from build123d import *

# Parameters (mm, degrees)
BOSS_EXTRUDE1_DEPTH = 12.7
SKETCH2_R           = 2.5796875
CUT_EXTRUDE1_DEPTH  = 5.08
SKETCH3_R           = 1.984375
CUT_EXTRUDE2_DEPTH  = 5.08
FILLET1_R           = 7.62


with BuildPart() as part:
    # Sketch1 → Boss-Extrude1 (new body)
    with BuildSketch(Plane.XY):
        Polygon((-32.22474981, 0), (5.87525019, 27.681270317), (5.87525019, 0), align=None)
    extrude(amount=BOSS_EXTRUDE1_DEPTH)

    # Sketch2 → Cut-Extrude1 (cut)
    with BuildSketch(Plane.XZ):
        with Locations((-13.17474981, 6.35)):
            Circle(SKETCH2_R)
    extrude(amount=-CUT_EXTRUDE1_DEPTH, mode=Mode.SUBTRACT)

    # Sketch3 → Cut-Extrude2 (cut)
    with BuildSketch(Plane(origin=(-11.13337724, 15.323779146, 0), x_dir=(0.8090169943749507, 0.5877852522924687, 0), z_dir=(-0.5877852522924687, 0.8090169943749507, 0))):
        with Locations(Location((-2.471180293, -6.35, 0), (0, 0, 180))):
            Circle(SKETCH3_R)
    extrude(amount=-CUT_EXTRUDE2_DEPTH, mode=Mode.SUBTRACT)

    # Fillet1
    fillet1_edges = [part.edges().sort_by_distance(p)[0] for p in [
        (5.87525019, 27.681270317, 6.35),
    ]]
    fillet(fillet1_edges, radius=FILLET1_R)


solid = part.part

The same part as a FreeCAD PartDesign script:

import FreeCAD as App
import Part
import Sketcher

V = App.Vector
Q = App.Units.Quantity


def edges_at(feature, points):
    """Names of the edges that pass closest to the given points."""
    edges = feature.Shape.Edges
    near = lambda p: min(range(len(edges)), key=lambda i: edges[i].distToShape(Part.Vertex(*p))[0])
    return sorted({f"Edge{near(p) + 1}" for p in points})


def add_polygon(sketch, points):
    """Adds a closed chain of lines whose ends are joined by coincident constraints."""
    first, n = sketch.GeometryCount, len(points)
    for a, b in zip(points, points[1:] + points[:1]):
        sketch.addGeometry(Part.LineSegment(App.Vector(*a, 0), App.Vector(*b, 0)), False)
    for i in range(n):
        sketch.addConstraint(Sketcher.Constraint("Coincident", first + i, 2, first + (i + 1) % n, 1))

doc = App.newDocument("Part")
body = doc.addObject("PartDesign::Body", "Body")

# Sketch on XY plane
sketch1 = body.newObject("Sketcher::SketchObject", "Sketch")
sketch1.AttachmentSupport = (doc.getObject("XY_Plane"), [""])
sketch1.MapMode = "FlatFace"
add_polygon(sketch1, [(5.87525, 27.68127), (-32.22475, 0), (5.87525, 0)])  # lines 0-2
sketch1.addConstraint(Sketcher.Constraint("Horizontal", 1))
sketch1.addConstraint(Sketcher.Constraint("Vertical", 2))
sketch1.addConstraint(Sketcher.Constraint("PointOnObject", 0, 2, -1))
sketch1.addConstraint(Sketcher.Constraint("DistanceX", 1, 1, 1, 2, Q("1.5 in")))
sketch1.addConstraint(Sketcher.Constraint("Angle", 0, Q("-144 deg")))
sketch1.addConstraint(Sketcher.Constraint("DistanceX", 0, 2, -1, 1, 32.22475))
pad1 = body.newObject("PartDesign::Pad", "Pad")
pad1.Profile = sketch1
pad1.Length = Q("0.5 in")

# Sketch on XZ plane
sketch2 = body.newObject("Sketcher::SketchObject", "Sketch001")
sketch2.AttachmentSupport = (doc.getObject("XZ_Plane"), [""])
sketch2.MapMode = "FlatFace"
sketch2.addGeometry(Part.Circle(V(-13.17475, 6.35, 0), V(0, 0, 1), 2.579687), False)
sketch2.addConstraint(Sketcher.Constraint("Diameter", 0, Q("0.203125 in")))
sketch2.addConstraint(Sketcher.Constraint("DistanceY", -1, 1, 0, 3, Q("0.25 in")))
sketch2.addConstraint(Sketcher.Constraint("DistanceX", 0, 3, -1, 1, 13.17475))
pocket1 = body.newObject("PartDesign::Pocket", "Pocket")
pocket1.Profile = sketch2
pocket1.Length = Q("0.2 in")

# Sketch on an angled plane
sketch3 = body.newObject("Sketcher::SketchObject", "Sketch002")
sketch3.Placement = App.Placement(V(-11.133377, 15.323779, 0), App.Rotation(V(0.809016994, 0.587785252, 0), V(0, 0, -0.999999999), V(-0.587785252, 0.809016994, 0), "ZXY"))
sketch3.addGeometry(Part.Circle(V(-2.47118, -6.35, 0), V(0, 0, 1), 1.984375), False)
sketch3.addConstraint(Sketcher.Constraint("Diameter", 0, Q("0.15625 in")))
sketch3.addConstraint(Sketcher.Constraint("DistanceY", 0, 3, -1, 1, Q("0.25 in")))
sketch3.addConstraint(Sketcher.Constraint("DistanceX", 0, 3, -1, 1, 2.47118))
pocket2 = body.newObject("PartDesign::Pocket", "Pocket001")
pocket2.Profile = sketch3
pocket2.Length = Q("0.2 in")
doc.recompute()

fillet = body.newObject("PartDesign::Fillet", "Fillet")
fillet.Base = (pocket2, edges_at(pocket2, [(5.875, 27.681, 6.35)]))
fillet.Radius = Q("0.3 in")

doc.recompute()
